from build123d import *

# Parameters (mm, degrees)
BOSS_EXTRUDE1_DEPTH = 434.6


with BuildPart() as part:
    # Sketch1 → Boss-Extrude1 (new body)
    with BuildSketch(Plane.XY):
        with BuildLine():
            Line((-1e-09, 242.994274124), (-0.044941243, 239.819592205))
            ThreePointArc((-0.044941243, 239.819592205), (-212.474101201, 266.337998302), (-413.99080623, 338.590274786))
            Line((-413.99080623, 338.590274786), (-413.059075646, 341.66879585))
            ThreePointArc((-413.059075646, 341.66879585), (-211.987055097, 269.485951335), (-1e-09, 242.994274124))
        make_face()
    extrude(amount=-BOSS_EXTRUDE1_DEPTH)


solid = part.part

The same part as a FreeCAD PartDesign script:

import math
import FreeCAD as App
import Part
import Sketcher
Q = App.Units.Quantity

doc = App.newDocument("Part")
body = doc.addObject("PartDesign::Body", "Body")

sketch1 = body.newObject("Sketcher::SketchObject", "Sketch")
sketch1.AttachmentSupport = (doc.getObject("XY_Plane"), [""])
sketch1.MapMode = "FlatFace"
sketch1.addGeometry([
    Part.LineSegment(App.Vector(0, 239.8, 0), App.Vector(0, 243, 0)),
    Part.ArcOfCircle(Part.Circle(App.Vector(13.8, 1214.4, 0), App.Vector(0, 0, 1), 971.6), math.radians(-116), math.radians(-91)),
    Part.LineSegment(App.Vector(-413.1, 341.7, 0), App.Vector(-414, 338.6, 0)),
    Part.ArcOfCircle(Part.Circle(App.Vector(13.8, 1214.4, 0), App.Vector(0, 0, 1), 974.7), math.radians(-116), math.radians(-91)),
], False)
sketch1.addConstraint([
    Sketcher.Constraint("Coincident", 0, 2, 1, 2),
    Sketcher.Constraint("Coincident", 1, 1, 2, 1),
    Sketcher.Constraint("Coincident", 2, 2, 3, 1),
    Sketcher.Constraint("Coincident", 3, 2, 0, 1),
    Sketcher.Constraint("Coincident", 3, 3, 1, 3),
    Sketcher.Constraint("PointOnObject", 0, 2, -2),
    Sketcher.Constraint("Radius", 1, Q("38.25 in")),
    Sketcher.Constraint("Radius", 3, Q("38.375 in")),
    Sketcher.Constraint("DistanceY", 0, 2, 2, 2, Q("95.596001 mm")),
    Sketcher.Constraint("Distance", 2, Q("3.216429 mm")),
    Sketcher.Constraint("DistanceX", -1, 1, 1, 3, Q("13.75202 mm")),
    Sketcher.Constraint("DistanceY", -1, 1, 1, 3, Q("1214.446941 mm")),
    Sketcher.Constraint("Angle", 0, Q("89.188967 deg")),
])
pad1 = body.newObject("PartDesign::Pad", "Pad")
pad1.Profile = sketch1
pad1.Length = 434.6
pad1.Reversed = True

doc.recompute()
